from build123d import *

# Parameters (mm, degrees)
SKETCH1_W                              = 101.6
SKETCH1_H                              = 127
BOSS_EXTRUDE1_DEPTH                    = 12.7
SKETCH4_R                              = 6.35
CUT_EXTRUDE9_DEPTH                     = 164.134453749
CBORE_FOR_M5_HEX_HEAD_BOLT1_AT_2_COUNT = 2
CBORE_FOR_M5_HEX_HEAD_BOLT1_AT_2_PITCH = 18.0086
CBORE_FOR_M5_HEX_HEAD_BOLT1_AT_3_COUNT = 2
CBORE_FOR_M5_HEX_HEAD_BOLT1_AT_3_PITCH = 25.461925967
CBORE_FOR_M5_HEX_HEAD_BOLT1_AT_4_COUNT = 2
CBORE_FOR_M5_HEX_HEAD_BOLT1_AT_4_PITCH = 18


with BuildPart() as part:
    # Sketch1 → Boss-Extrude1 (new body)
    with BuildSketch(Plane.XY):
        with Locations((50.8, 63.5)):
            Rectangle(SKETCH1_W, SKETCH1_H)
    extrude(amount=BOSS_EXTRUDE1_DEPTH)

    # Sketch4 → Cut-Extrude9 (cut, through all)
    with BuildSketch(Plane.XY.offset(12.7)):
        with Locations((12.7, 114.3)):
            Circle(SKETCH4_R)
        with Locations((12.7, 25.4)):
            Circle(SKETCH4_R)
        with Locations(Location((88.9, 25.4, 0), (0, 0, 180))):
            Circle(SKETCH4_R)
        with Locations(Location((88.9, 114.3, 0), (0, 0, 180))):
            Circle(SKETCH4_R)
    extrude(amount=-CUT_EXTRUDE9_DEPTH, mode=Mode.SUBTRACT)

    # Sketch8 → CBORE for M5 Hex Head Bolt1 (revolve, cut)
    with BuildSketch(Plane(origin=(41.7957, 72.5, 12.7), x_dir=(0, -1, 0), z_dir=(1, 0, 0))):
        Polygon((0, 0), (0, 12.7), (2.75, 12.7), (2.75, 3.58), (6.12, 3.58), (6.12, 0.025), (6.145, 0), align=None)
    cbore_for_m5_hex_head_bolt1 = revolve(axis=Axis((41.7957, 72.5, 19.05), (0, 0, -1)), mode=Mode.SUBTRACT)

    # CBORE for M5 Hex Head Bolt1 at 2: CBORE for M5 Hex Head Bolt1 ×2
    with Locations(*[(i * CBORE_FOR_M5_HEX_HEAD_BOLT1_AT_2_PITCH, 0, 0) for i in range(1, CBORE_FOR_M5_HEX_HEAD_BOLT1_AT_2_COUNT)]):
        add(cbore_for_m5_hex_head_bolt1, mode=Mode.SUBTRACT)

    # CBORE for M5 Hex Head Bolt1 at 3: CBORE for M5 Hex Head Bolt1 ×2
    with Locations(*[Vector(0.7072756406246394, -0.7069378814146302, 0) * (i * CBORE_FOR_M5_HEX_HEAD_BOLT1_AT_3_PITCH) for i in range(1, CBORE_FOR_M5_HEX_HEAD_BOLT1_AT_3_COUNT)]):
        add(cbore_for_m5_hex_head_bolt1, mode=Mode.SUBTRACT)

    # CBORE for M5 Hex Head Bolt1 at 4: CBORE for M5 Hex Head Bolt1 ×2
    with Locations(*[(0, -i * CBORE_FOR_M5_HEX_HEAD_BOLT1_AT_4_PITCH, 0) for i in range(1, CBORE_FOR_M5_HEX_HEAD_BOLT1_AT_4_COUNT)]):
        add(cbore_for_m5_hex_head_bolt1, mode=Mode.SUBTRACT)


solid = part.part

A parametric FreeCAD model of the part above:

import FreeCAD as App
import Part
import Sketcher

V = App.Vector
Q = App.Units.Quantity

doc = App.newDocument("Part")
body = doc.addObject("PartDesign::Body", "Body")

# Sketch on XY plane
sketch1 = body.newObject("Sketcher::SketchObject", "Sketch")
sketch1.AttachmentSupport = (doc.getObject("XY_Plane"), [""])
sketch1.MapMode = "FlatFace"
sketch1.addGeometry(Part.LineSegment(V(0, 127, 0), V(0, 0, 0)), False)
sketch1.addGeometry(Part.LineSegment(V(0, 0, 0), V(102, 0, 0)), False)
sketch1.addGeometry(Part.LineSegment(V(102, 0, 0), V(102, 127, 0)), False)
sketch1.addGeometry(Part.LineSegment(V(102, 127, 0), V(0, 127, 0)), False)
sketch1.addConstraint(Sketcher.Constraint("Coincident", 0, 2, 1, 1))
sketch1.addConstraint(Sketcher.Constraint("Coincident", 1, 2, 2, 1))
sketch1.addConstraint(Sketcher.Constraint("Coincident", 2, 2, 3, 1))
sketch1.addConstraint(Sketcher.Constraint("Coincident", 3, 2, 0, 1))
sketch1.addConstraint(Sketcher.Constraint("Vertical", 0))
sketch1.addConstraint(Sketcher.Constraint("Horizontal", 1))
sketch1.addConstraint(Sketcher.Constraint("Vertical", 2))
sketch1.addConstraint(Sketcher.Constraint("Horizontal", 3))
sketch1.addConstraint(Sketcher.Constraint("Coincident", 0, 2, -1, 1))
sketch1.addConstraint(Sketcher.Constraint("DistanceX", 1, 1, 1, 2, Q("4 in")))
sketch1.addConstraint(Sketcher.Constraint("DistanceY", 0, 2, 0, 1, Q("5 in")))
pad1 = body.newObject("PartDesign::Pad", "Pad")
pad1.Profile = sketch1
pad1.Length = Q("0.5 in")

# Sketch on XY plane
sketch2 = body.newObject("Sketcher::SketchObject", "Sketch001")
sketch2.AttachmentSupport = (doc.getObject("XY_Plane"), [""])
sketch2.MapMode = "FlatFace"
sketch2.AttachmentOffset = App.Placement(V(0, 0, 0.5 * 25.4), App.Rotation())
sketch2.addGeometry(Part.Circle(V(13, 114, 0), V(0, 0, 1), 6), False)
sketch2.addGeometry(Part.Circle(V(13, 25, 0), V(0, 0, 1), 6), False)
sketch2.addGeometry(Part.Circle(V(89, 25, 0), V(0, 0, 1), 6), False)
sketch2.addGeometry(Part.Circle(V(89, 114, 0), V(0, 0, 1), 6), False)
sketch2.addConstraint(Sketcher.Constraint("Equal", 0, 1))
sketch2.addConstraint(Sketcher.Constraint("Equal", 1, 2))
sketch2.addConstraint(Sketcher.Constraint("Equal", 2, 3))
sketch2.addConstraint(Sketcher.Constraint("Horizontal", 1, 3, 2, 3))
sketch2.addConstraint(Sketcher.Constraint("Horizontal", 0, 3, 3, 3))
sketch2.addConstraint(Sketcher.Constraint("Vertical", 0, 3, 1, 3))
sketch2.addConstraint(Sketcher.Constraint("Vertical", 2, 3, 3, 3))
sketch2.addConstraint(Sketcher.Constraint("Diameter", 0, Q("0.5 in")))
sketch2.addConstraint(Sketcher.Constraint("DistanceY", -1, 1, 1, 3, Q("1 in")))
sketch2.addConstraint(Sketcher.Constraint("DistanceX", 1, 3, 2, 3, Q("3 in")))
sketch2.addConstraint(Sketcher.Constraint("DistanceX", -1, 1, 0, 3, Q("0.5 in")))
sketch2.addConstraint(Sketcher.Constraint("DistanceY", -1, 1, 0, 3, Q("4.5 in")))
pocket1 = body.newObject("PartDesign::Pocket", "Pocket")
pocket1.Profile = sketch2
pocket1.Type = "ThroughAll"

# Sketch on YZ plane
sketch3 = body.newObject("Sketcher::SketchObject", "Sketch002")
sketch3.AttachmentSupport = (doc.getObject("YZ_Plane"), [""])
sketch3.MapMode = "FlatFace"
sketch3.AttachmentOffset = App.Placement(V(0, 0, 1.6455 * 25.4), App.Rotation())
sketch3.addGeometry(Part.LineSegment(V(72.5, 0, 0), V(72.5, 12.7, 0)), False)
sketch3.addGeometry(Part.LineSegment(V(72.5, 12.7, 0), V(66.355, 12.7, 0)), False)
sketch3.addGeometry(Part.LineSegment(V(66.355, 12.7, 0), V(66.38, 12.675, 0)), False)
sketch3.addGeometry(Part.LineSegment(V(66.38, 12.675, 0), V(66.38, 9.12, 0)), False)
sketch3.addGeometry(Part.LineSegment(V(66.38, 9.12, 0), V(69.75, 9.12, 0)), False)
sketch3.addGeometry(Part.LineSegment(V(69.75, 9.12, 0), V(69.75, 0, 0)), False)
sketch3.addGeometry(Part.LineSegment(V(69.75, 0, 0), V(72.5, 0, 0)), False)
sketch3.addGeometry(Part.LineSegment(V(72.5, 12.7, 0), V(72.5, 0, 0)), True)  # axis
sketch3.addConstraint(Sketcher.Constraint("Coincident", 0, 2, 1, 1))
sketch3.addConstraint(Sketcher.Constraint("Coincident", 1, 2, 2, 1))
sketch3.addConstraint(Sketcher.Constraint("Coincident", 2, 2, 3, 1))
sketch3.addConstraint(Sketcher.Constraint("Coincident", 3, 2, 4, 1))
sketch3.addConstraint(Sketcher.Constraint("Coincident", 4, 2, 5, 1))
sketch3.addConstraint(Sketcher.Constraint("Coincident", 5, 2, 6, 1))
sketch3.addConstraint(Sketcher.Constraint("Coincident", 6, 2, 0, 1))
sketch3.addConstraint(Sketcher.Constraint("Vertical", 0))
sketch3.addConstraint(Sketcher.Constraint("Horizontal", 1))
sketch3.addConstraint(Sketcher.Constraint("Vertical", 3))
sketch3.addConstraint(Sketcher.Constraint("Horizontal", 4))
sketch3.addConstraint(Sketcher.Constraint("Vertical", 5))
sketch3.addConstraint(Sketcher.Constraint("Horizontal", 6))
sketch3.addConstraint(Sketcher.Constraint("Vertical", 7))
sketch3.addConstraint(Sketcher.Constraint("Coincident", 7, 1, 0, 2))
sketch3.addConstraint(Sketcher.Constraint("PointOnObject", 5, 2, -1))
sketch3.addConstraint(Sketcher.Constraint("PointOnObject", 7, 2, -1))
sketch3.addConstraint(Sketcher.Constraint("DistanceY", 0, 1, 0, 2, Q("0.5 in")))
sketch3.addConstraint(Sketcher.Constraint("Angle", 2, Q("-45 deg")))
sketch3.addConstraint(Sketcher.Constraint("DistanceX", 1, 2, 1, 1, Q("6.145 mm")))
sketch3.addConstraint(Sketcher.Constraint("DistanceX", 4, 1, 4, 2, Q("3.37 mm")))
sketch3.addConstraint(Sketcher.Constraint("DistanceX", 6, 1, 6, 2, Q("2.75 mm")))
sketch3.addConstraint(Sketcher.Constraint("DistanceY", 3, 2, 3, 1, Q("3.555 mm")))
sketch3.addConstraint(Sketcher.Constraint("DistanceX", -1, 1, 0, 2, Q("72.5 mm")))
groove = body.newObject("PartDesign::Groove", "Groove")
groove.Profile = sketch3
groove.ReferenceAxis = (sketch3, ["Axis0"])
groove.Angle = 360
doc.recompute()

linearpattern = body.newObject("PartDesign::LinearPattern", "LinearPattern")
linearpattern.Originals = [groove]
linearpattern.Direction = (doc.getObject("X_Axis"), [""])
linearpattern.Mode = "offset"
linearpattern.Offset = Q("0.709 in")
linearpattern.Occurrences = 2
body.Tip = linearpattern
doc.recompute()

datumline = body.newObject("PartDesign::Line", "DatumLine")
datumline.Placement = App.Placement(V(0, 0, 0), App.Rotation(V(0, 0, 1), V(0.707275641, -0.706937881, 0)))
linearpattern2 = body.newObject("PartDesign::LinearPattern", "LinearPattern001")
linearpattern2.Originals = [groove]
linearpattern2.Direction = (datumline, [""])
linearpattern2.Mode = "offset"
linearpattern2.Offset = 25.461926
linearpattern2.Occurrences = 2
body.Tip = linearpattern2
doc.recompute()

linearpattern3 = body.newObject("PartDesign::LinearPattern", "LinearPattern002")
linearpattern3.Originals = [groove]
linearpattern3.Direction = (doc.getObject("Y_Axis"), [""])
linearpattern3.Mode = "offset"
linearpattern3.Offset = 18
linearpattern3.Occurrences = 2
linearpattern3.Reversed = True
body.Tip = linearpattern3

doc.recompute()
